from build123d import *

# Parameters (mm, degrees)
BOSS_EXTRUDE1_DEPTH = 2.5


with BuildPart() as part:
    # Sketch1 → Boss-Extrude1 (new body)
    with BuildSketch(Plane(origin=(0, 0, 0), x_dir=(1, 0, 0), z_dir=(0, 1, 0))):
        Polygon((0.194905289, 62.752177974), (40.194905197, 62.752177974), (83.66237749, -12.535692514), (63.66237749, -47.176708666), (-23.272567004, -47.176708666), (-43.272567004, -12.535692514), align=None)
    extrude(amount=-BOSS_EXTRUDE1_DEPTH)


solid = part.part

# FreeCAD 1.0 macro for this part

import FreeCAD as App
import Part
import Sketcher
Q = App.Units.Quantity

doc = App.newDocument("Part")
body = doc.addObject("PartDesign::Body", "Body")

# Sketch on XZ plane
sketch1 = doc.addObject("Sketcher::SketchObject", "Sketch")
body.addObject(sketch1)
sketch1.AttachmentSupport = (doc.XZ_Plane, [""])
sketch1.MapMode = "FlatFace"
sketch1.addGeometry(Part.LineSegment(App.Vector(40, -63, 0), App.Vector(0, -63, 0)), False)
sketch1.addGeometry(Part.LineSegment(App.Vector(0, -63, 0), App.Vector(-43, 13, 0)), False)
sketch1.addGeometry(Part.LineSegment(App.Vector(-43, 13, 0), App.Vector(-23, 47, 0)), False)
sketch1.addGeometry(Part.LineSegment(App.Vector(-23, 47, 0), App.Vector(64, 47, 0)), False)
sketch1.addGeometry(Part.LineSegment(App.Vector(64, 47, 0), App.Vector(84, 13, 0)), False)
sketch1.addGeometry(Part.LineSegment(App.Vector(84, 13, 0), App.Vector(40, -63, 0)), False)
sketch1.addConstraint(Sketcher.Constraint("Coincident", 0, 2, 1, 1))
sketch1.addConstraint(Sketcher.Constraint("Coincident", 1, 2, 2, 1))
sketch1.addConstraint(Sketcher.Constraint("Coincident", 2, 2, 3, 1))
sketch1.addConstraint(Sketcher.Constraint("Coincident", 3, 2, 4, 1))
sketch1.addConstraint(Sketcher.Constraint("Coincident", 4, 2, 5, 1))
sketch1.addConstraint(Sketcher.Constraint("Coincident", 5, 2, 0, 1))
sketch1.addConstraint(Sketcher.Constraint("Horizontal", 0))
sketch1.addConstraint(Sketcher.Constraint("Horizontal", 3))
sketch1.addConstraint(Sketcher.Constraint("Parallel", 1, 4))
sketch1.addConstraint(Sketcher.Constraint("Parallel", 2, 5))
sketch1.addConstraint(Sketcher.Constraint("Horizontal", 1, 2, 4, 2))
sketch1.addConstraint(Sketcher.Constraint("Equal", 2, 4))
sketch1.addConstraint(Sketcher.Constraint("DistanceX", 0, 2, 0, 1, Q("40 mm")))
sketch1.addConstraint(Sketcher.Constraint("Angle", 1, Q("120 deg")))
sketch1.addConstraint(Sketcher.Constraint("Distance", 2, Q("40 mm")))
sketch1.addConstraint(Sketcher.Constraint("DistanceX", 3, 1, 3, 2, Q("86.934944 mm")))
sketch1.addConstraint(Sketcher.Constraint("DistanceY", -1, 1, 2, 2, Q("47.176709 mm")))
sketch1.addConstraint(Sketcher.Constraint("DistanceX", -1, 1, 0, 2, Q("0.194905 mm")))
pad1 = doc.addObject("PartDesign::Pad", "Pad")
body.addObject(pad1)
pad1.Profile = sketch1
pad1.Length = 2.5

doc.recompute()
